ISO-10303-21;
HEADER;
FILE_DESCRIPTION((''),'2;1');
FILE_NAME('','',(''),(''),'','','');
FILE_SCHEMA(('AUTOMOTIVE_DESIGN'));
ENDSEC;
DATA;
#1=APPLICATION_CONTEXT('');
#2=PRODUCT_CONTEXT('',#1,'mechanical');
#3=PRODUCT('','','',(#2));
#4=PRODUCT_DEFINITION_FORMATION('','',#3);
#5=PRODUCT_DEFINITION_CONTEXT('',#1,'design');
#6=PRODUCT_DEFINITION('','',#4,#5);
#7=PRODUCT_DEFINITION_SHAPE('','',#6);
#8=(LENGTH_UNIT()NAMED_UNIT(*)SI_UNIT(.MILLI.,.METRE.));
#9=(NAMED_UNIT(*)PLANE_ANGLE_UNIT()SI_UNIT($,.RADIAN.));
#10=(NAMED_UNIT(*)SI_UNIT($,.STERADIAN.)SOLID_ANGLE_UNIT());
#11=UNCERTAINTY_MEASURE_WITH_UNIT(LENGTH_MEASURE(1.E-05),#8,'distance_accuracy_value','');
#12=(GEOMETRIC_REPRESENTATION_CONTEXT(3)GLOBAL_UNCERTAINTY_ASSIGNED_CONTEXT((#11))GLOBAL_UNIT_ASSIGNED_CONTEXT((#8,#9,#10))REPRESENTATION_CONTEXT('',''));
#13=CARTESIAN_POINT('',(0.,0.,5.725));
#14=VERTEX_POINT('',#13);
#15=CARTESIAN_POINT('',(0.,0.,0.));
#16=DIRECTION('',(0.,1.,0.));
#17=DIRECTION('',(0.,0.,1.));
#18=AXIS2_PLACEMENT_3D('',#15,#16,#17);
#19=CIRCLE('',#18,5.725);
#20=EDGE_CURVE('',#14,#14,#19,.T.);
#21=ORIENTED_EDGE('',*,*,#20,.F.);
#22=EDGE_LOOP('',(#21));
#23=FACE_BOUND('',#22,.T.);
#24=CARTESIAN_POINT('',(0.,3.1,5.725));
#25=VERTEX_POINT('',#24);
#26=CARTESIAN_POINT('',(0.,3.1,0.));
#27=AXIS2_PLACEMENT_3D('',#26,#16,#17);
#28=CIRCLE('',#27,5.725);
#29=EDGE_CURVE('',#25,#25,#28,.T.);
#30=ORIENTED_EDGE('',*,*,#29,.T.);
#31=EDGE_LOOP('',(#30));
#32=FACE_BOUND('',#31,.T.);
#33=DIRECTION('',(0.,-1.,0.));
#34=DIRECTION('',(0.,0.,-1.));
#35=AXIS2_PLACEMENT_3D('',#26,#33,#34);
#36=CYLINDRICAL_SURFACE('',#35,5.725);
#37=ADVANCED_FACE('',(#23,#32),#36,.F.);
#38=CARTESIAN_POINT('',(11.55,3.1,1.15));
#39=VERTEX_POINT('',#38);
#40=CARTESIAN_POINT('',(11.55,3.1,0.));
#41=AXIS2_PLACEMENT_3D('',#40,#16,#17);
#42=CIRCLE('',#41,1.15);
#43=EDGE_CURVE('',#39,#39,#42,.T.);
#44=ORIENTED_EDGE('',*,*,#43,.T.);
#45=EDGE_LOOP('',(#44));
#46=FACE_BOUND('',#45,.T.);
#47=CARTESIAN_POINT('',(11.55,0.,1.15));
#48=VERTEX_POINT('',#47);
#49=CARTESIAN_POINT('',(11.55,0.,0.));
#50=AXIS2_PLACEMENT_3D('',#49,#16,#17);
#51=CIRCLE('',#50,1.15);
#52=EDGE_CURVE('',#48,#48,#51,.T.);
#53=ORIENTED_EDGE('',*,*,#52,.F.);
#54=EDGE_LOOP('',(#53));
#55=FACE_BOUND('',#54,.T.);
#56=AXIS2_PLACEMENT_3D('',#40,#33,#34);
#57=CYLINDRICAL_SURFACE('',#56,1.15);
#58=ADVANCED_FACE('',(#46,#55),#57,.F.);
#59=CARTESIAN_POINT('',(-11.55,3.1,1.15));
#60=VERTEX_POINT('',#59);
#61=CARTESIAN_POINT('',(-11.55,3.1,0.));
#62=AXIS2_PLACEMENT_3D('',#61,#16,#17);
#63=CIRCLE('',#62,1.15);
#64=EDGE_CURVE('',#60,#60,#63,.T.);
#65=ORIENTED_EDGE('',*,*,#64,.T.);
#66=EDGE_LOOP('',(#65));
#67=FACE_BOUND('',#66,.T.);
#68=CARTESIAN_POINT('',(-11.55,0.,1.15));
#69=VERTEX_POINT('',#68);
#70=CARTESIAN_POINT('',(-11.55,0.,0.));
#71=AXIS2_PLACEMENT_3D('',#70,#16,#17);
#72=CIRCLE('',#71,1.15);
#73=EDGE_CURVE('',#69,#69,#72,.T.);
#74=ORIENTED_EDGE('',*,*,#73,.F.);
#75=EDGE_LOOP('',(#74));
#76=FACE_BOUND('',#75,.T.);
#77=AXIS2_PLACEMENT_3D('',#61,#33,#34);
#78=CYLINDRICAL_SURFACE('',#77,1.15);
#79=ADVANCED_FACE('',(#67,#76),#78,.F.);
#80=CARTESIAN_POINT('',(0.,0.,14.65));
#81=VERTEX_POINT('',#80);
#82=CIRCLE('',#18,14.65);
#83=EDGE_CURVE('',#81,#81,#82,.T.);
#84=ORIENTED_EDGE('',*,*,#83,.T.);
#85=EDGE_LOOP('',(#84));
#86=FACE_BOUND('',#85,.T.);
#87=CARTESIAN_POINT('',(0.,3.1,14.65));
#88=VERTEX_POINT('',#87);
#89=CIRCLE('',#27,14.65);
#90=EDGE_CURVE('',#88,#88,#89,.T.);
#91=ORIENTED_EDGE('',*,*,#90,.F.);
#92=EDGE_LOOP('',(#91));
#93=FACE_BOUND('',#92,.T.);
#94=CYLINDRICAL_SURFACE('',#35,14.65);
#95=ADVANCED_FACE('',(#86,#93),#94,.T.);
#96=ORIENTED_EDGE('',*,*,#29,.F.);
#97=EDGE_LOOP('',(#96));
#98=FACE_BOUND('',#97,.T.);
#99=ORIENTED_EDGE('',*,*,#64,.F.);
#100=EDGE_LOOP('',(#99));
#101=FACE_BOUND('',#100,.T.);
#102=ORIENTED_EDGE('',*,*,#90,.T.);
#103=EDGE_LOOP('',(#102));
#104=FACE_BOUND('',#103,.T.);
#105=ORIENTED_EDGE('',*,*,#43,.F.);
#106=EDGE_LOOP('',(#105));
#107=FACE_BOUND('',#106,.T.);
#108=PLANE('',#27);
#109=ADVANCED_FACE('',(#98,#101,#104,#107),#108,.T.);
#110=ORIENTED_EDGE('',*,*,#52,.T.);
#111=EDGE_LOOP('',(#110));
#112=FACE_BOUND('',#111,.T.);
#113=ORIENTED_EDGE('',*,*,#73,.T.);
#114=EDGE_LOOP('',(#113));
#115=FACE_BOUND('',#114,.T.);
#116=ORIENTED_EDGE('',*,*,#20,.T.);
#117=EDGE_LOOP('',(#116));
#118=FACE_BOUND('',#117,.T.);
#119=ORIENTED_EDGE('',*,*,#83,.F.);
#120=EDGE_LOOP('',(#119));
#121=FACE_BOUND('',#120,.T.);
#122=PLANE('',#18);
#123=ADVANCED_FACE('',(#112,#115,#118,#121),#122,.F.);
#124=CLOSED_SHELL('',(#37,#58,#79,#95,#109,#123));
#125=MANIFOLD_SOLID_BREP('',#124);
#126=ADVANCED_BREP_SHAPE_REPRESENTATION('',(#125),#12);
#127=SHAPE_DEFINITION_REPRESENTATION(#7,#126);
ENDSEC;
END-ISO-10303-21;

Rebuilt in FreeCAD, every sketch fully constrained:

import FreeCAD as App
import Part
import Sketcher

doc = App.newDocument("Part")
body = doc.addObject("PartDesign::Body", "Body")

sketch1 = body.newObject("Sketcher::SketchObject", "Sketch")
sketch1.AttachmentSupport = (doc.getObject("XZ_Plane"), [""])
sketch1.MapMode = "FlatFace"
sketch1.addGeometry(Part.Circle(App.Vector(0, 0, 0), App.Vector(0, 0, 1), 14.65), False)
sketch1.addGeometry(Part.Circle(App.Vector(-11.55, 0, 0), App.Vector(0, 0, 1), 1.15), False)
sketch1.addGeometry(Part.Circle(App.Vector(0, 0, 0), App.Vector(0, 0, 1), 5.725), False)
sketch1.addGeometry(Part.Circle(App.Vector(11.55, 0, 0), App.Vector(0, 0, 1), 1.15), False)
sketch1.addConstraint(Sketcher.Constraint("Coincident", 0, 3, -1, 1))
sketch1.addConstraint(Sketcher.Constraint("Coincident", 2, 3, -1, 1))
sketch1.addConstraint(Sketcher.Constraint("Equal", 1, 3))
sketch1.addConstraint(Sketcher.Constraint("Symmetric", 1, 3, 3, 3, -1, 1))
sketch1.addConstraint(Sketcher.Constraint("PointOnObject", 1, 3, -1))
sketch1.addConstraint(Sketcher.Constraint("Diameter", 0, 29.3))
sketch1.addConstraint(Sketcher.Constraint("Diameter", 1, 2.3))
sketch1.addConstraint(Sketcher.Constraint("Diameter", 2, 11.45))
sketch1.addConstraint(Sketcher.Constraint("DistanceX", 1, 3, 3, 3, 23.1))
pad1 = body.newObject("PartDesign::Pad", "Pad")
pad1.Profile = sketch1
pad1.Length = 3.1
pad1.Reversed = True

doc.recompute()
